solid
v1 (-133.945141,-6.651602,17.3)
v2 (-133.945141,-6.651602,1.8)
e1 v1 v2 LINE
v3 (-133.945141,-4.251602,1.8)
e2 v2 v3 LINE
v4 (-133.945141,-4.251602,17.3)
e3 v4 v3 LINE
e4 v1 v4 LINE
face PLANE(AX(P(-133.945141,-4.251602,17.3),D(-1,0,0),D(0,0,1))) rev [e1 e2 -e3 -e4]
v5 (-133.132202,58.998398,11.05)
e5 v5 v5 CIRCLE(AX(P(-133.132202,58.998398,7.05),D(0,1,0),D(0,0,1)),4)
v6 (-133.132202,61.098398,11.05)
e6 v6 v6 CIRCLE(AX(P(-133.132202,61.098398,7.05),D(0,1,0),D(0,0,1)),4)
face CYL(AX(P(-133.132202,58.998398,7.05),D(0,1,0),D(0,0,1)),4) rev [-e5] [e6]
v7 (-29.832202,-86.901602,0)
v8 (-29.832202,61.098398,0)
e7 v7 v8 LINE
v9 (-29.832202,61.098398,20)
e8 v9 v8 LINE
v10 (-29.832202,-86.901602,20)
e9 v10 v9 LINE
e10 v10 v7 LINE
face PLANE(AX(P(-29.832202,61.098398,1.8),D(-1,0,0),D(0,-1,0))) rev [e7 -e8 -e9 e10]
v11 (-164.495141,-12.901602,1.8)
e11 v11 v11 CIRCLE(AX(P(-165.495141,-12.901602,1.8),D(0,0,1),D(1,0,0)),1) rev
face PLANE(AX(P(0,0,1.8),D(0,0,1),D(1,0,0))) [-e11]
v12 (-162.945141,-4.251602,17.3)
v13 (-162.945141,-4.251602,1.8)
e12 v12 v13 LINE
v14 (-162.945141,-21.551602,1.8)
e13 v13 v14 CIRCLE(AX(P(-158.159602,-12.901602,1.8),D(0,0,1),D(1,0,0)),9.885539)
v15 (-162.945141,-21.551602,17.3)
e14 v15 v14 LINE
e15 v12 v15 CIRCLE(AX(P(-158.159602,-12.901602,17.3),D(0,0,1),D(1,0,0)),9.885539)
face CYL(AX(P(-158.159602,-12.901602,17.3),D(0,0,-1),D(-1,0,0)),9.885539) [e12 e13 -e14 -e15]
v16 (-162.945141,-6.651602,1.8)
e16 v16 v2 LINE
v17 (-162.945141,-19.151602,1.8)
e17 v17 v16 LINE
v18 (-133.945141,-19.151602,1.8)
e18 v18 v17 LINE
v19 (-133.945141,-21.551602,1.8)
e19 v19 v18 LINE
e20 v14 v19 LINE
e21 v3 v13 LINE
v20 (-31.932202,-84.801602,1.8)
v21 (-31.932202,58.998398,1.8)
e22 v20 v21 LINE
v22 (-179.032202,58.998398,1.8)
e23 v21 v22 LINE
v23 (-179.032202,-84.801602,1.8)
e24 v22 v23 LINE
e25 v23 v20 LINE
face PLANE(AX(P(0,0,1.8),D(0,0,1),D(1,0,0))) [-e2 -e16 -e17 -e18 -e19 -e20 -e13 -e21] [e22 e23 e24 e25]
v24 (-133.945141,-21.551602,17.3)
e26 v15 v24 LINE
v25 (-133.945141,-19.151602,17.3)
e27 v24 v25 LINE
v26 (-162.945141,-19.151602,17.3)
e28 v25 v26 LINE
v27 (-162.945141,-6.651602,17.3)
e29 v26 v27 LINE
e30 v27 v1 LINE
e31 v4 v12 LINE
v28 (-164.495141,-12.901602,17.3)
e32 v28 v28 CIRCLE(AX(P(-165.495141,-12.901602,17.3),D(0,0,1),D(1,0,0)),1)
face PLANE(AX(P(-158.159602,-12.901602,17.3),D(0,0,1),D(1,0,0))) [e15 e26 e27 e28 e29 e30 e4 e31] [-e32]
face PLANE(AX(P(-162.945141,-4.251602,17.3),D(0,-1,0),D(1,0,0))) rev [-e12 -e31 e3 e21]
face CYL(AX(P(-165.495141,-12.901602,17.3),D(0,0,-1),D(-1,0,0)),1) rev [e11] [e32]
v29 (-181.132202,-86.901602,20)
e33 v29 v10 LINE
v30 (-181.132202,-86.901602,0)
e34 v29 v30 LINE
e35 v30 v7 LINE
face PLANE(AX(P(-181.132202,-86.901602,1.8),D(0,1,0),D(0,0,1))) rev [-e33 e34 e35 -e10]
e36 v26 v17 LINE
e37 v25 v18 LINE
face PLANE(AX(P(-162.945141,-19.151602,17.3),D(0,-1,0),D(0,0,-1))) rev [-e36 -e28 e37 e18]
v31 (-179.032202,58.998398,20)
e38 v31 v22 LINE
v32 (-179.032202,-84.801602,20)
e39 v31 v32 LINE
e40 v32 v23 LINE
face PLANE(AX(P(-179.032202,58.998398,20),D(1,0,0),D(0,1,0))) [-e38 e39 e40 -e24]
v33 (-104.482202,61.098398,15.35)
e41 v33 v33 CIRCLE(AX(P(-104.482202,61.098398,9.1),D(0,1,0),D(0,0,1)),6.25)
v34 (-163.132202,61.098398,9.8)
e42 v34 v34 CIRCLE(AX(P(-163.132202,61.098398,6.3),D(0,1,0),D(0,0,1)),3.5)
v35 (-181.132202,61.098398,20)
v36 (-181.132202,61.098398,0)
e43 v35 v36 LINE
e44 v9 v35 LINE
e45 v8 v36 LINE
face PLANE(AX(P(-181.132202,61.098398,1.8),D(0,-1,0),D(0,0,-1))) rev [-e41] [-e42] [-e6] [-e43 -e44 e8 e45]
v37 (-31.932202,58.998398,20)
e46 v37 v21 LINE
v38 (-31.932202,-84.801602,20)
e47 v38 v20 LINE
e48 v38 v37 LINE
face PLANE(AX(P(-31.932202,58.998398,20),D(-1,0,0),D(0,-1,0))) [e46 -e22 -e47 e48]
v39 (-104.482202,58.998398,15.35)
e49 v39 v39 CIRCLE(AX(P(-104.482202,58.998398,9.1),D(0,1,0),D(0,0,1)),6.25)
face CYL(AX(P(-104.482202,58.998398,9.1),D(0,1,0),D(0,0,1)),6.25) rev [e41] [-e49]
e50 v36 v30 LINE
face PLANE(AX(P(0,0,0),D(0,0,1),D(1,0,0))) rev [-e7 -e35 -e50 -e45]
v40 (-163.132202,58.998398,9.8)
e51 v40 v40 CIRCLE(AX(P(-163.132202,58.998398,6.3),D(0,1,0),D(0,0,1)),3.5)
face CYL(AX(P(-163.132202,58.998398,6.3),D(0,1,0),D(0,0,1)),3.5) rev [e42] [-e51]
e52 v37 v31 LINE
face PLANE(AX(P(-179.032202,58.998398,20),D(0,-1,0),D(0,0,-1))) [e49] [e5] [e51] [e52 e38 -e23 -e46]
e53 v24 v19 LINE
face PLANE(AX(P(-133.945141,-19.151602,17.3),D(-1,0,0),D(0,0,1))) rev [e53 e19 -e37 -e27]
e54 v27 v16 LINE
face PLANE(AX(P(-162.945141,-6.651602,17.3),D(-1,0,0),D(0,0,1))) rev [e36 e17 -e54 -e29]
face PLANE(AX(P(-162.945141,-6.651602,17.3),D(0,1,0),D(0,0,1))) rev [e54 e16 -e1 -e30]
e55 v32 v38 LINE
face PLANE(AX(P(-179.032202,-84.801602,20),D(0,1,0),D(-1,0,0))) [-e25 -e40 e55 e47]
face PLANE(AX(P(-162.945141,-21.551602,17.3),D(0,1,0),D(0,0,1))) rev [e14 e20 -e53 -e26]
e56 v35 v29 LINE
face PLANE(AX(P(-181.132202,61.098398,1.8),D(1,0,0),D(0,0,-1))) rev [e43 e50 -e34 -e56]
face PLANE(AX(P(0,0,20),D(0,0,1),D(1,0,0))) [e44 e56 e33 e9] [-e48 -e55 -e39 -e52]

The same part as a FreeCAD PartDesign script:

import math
import FreeCAD as App
import Part
import Sketcher

V = App.Vector
Q = App.Units.Quantity


def add_polygon(sketch, points):
    """Adds a closed chain of lines whose ends are joined by coincident constraints."""
    first, n = sketch.GeometryCount, len(points)
    for a, b in zip(points, points[1:] + points[:1]):
        sketch.addGeometry(Part.LineSegment(App.Vector(*a, 0), App.Vector(*b, 0)), False)
    for i in range(n):
        sketch.addConstraint(Sketcher.Constraint("Coincident", first + i, 2, first + (i + 1) % n, 1))

doc = App.newDocument("Part")
body = doc.addObject("PartDesign::Body", "Body")

sketch1 = body.newObject("Sketcher::SketchObject", "Sketch")
sketch1.AttachmentSupport = (doc.getObject("XY_Plane"), [""])
sketch1.MapMode = "FlatFace"
add_polygon(sketch1, [(-181, 61), (-181, -87), (-30, -87), (-30, 61)])
sketch1.addConstraint(Sketcher.Constraint("Vertical", 0))
sketch1.addConstraint(Sketcher.Constraint("Horizontal", 1))
sketch1.addConstraint(Sketcher.Constraint("Vertical", 2))
sketch1.addConstraint(Sketcher.Constraint("Horizontal", 3))
sketch1.addConstraint(Sketcher.Constraint("DistanceY", 0, 2, 0, 1, Q("148 mm")))
sketch1.addConstraint(Sketcher.Constraint("DistanceX", 1, 1, 1, 2, Q("151.3 mm")))
sketch1.addConstraint(Sketcher.Constraint("DistanceX", 0, 2, -1, 1, Q("181.132202 mm")))
sketch1.addConstraint(Sketcher.Constraint("DistanceY", 0, 2, -1, 1, Q("86.901602 mm")))
pad1 = body.newObject("PartDesign::Pad", "Pad")
pad1.Profile = sketch1
pad1.Length = 1.8

sketch2 = body.newObject("Sketcher::SketchObject", "Sketch001")
sketch2.AttachmentSupport = (doc.getObject("XY_Plane"), [""])
sketch2.MapMode = "FlatFace"
sketch2.AttachmentOffset = App.Placement(V(0, 0, 1.8), App.Rotation())
add_polygon(sketch2, [(-181, 61), (-181, -87), (-30, -87), (-30, 61)])
add_polygon(sketch2, [(-32, -85), (-179, -85), (-179, 59), (-32, 59)])
sketch2.addConstraint(Sketcher.Constraint("Vertical", 0))
sketch2.addConstraint(Sketcher.Constraint("Horizontal", 1))
sketch2.addConstraint(Sketcher.Constraint("Vertical", 2))
sketch2.addConstraint(Sketcher.Constraint("Horizontal", 3))
sketch2.addConstraint(Sketcher.Constraint("Horizontal", 4))
sketch2.addConstraint(Sketcher.Constraint("Vertical", 5))
sketch2.addConstraint(Sketcher.Constraint("Horizontal", 6))
sketch2.addConstraint(Sketcher.Constraint("Vertical", 7))
sketch2.addConstraint(Sketcher.Constraint("DistanceY", 0, 2, 0, 1, Q("148 mm")))
sketch2.addConstraint(Sketcher.Constraint("DistanceX", 1, 1, 1, 2, Q("151.3 mm")))
sketch2.addConstraint(Sketcher.Constraint("DistanceX", 4, 2, 4, 1, Q("147.1 mm")))
sketch2.addConstraint(Sketcher.Constraint("DistanceY", 5, 1, 5, 2, Q("143.8 mm")))
sketch2.addConstraint(Sketcher.Constraint("DistanceX", 0, 2, 4, 2, Q("2.1 mm")))
sketch2.addConstraint(Sketcher.Constraint("DistanceY", 0, 2, 4, 2, Q("2.1 mm")))
sketch2.addConstraint(Sketcher.Constraint("DistanceX", 0, 2, -1, 1, Q("181.132202 mm")))
sketch2.addConstraint(Sketcher.Constraint("DistanceY", 0, 2, -1, 1, Q("86.901602 mm")))
pad2 = body.newObject("PartDesign::Pad", "Pad001")
pad2.Profile = sketch2
pad2.Length = 18.2

sketch3 = body.newObject("Sketcher::SketchObject", "Sketch002")
sketch3.AttachmentSupport = (doc.getObject("XZ_Plane"), [""])
sketch3.MapMode = "FlatFace"
sketch3.AttachmentOffset = App.Placement(V(0, 0, -61.098398), App.Rotation())
sketch3.addGeometry(Part.Circle(V(-104.5, 9.1, 0), V(0, 0, 1), 6.2), False)
sketch3.addGeometry(Part.Circle(V(-163.1, 6.3, 0), V(0, 0, 1), 3.5), False)
sketch3.addGeometry(Part.Circle(V(-133.1, 7, 0), V(0, 0, 1), 4), False)
sketch3.addConstraint(Sketcher.Constraint("Diameter", 1, Q("7 mm")))
sketch3.addConstraint(Sketcher.Constraint("Diameter", 2, Q("8 mm")))
sketch3.addConstraint(Sketcher.Constraint("Diameter", 0, Q("12.5 mm")))
sketch3.addConstraint(Sketcher.Constraint("DistanceX", 1, 3, 2, 3, Q("30 mm")))
sketch3.addConstraint(Sketcher.Constraint("DistanceY", -1, 1, 0, 3, Q("9.1 mm")))
sketch3.addConstraint(Sketcher.Constraint("DistanceY", -1, 1, 1, 3, Q("6.3 mm")))
sketch3.addConstraint(Sketcher.Constraint("DistanceY", -1, 1, 2, 3, Q("7.05 mm")))
sketch3.addConstraint(Sketcher.Constraint("DistanceX", 1, 3, 0, 3, Q("58.65 mm")))
sketch3.addConstraint(Sketcher.Constraint("DistanceX", 0, 3, -1, 1, Q("104.482202 mm")))
pocket1 = body.newObject("PartDesign::Pocket", "Pocket")
pocket1.Profile = sketch3
pocket1.Length = 2.1
pocket1.Reversed = True

sketch4 = body.newObject("Sketcher::SketchObject", "Sketch003")
sketch4.AttachmentSupport = (doc.getObject("XY_Plane"), [""])
sketch4.MapMode = "FlatFace"
sketch4.AttachmentOffset = App.Placement(V(0, 0, 1.8), App.Rotation())
sketch4.addGeometry(Part.LineSegment(V(-133.9, -6.7, 0), V(-133.9, -4.3, 0)), False)
sketch4.addGeometry(Part.LineSegment(V(-133.9, -4.3, 0), V(-162.9, -4.3, 0)), False)
sketch4.addGeometry(Part.ArcOfCircle(Part.Circle(V(-158.2, -12.9, 0), V(0, 0, 1), 9.9), math.radians(119), math.radians(241)), False)
sketch4.addGeometry(Part.LineSegment(V(-162.9, -21.6, 0), V(-133.9, -21.6, 0)), False)
sketch4.addGeometry(Part.LineSegment(V(-133.9, -21.6, 0), V(-133.9, -19.2, 0)), False)
sketch4.addGeometry(Part.LineSegment(V(-133.9, -19.2, 0), V(-162.9, -19.2, 0)), False)
sketch4.addGeometry(Part.LineSegment(V(-162.9, -19.2, 0), V(-162.9, -6.7, 0)), False)
sketch4.addGeometry(Part.LineSegment(V(-162.9, -6.7, 0), V(-133.9, -6.7, 0)), False)
sketch4.addGeometry(Part.Circle(V(-165.5, -12.9, 0), V(0, 0, 1), 1), False)
sketch4.addConstraint(Sketcher.Constraint("Coincident", 0, 2, 1, 1))
sketch4.addConstraint(Sketcher.Constraint("Coincident", 1, 2, 2, 1))
sketch4.addConstraint(Sketcher.Constraint("Coincident", 2, 2, 3, 1))
sketch4.addConstraint(Sketcher.Constraint("Coincident", 3, 2, 4, 1))
sketch4.addConstraint(Sketcher.Constraint("Coincident", 4, 2, 5, 1))
sketch4.addConstraint(Sketcher.Constraint("Coincident", 5, 2, 6, 1))
sketch4.addConstraint(Sketcher.Constraint("Coincident", 6, 2, 7, 1))
sketch4.addConstraint(Sketcher.Constraint("Coincident", 7, 2, 0, 1))
sketch4.addConstraint(Sketcher.Constraint("Vertical", 0))
sketch4.addConstraint(Sketcher.Constraint("Horizontal", 1))
sketch4.addConstraint(Sketcher.Constraint("Horizontal", 3))
sketch4.addConstraint(Sketcher.Constraint("Vertical", 4))
sketch4.addConstraint(Sketcher.Constraint("Horizontal", 5))
sketch4.addConstraint(Sketcher.Constraint("Vertical", 6))
sketch4.addConstraint(Sketcher.Constraint("Horizontal", 7))
sketch4.addConstraint(Sketcher.Constraint("Horizontal", 2, 3, 8, 3))
sketch4.addConstraint(Sketcher.Constraint("Vertical", 1, 2, 2, 2))
sketch4.addConstraint(Sketcher.Constraint("Vertical", 0, 2, 3, 2))
sketch4.addConstraint(Sketcher.Constraint("Vertical", 2, 2, 5, 2))
sketch4.addConstraint(Sketcher.Constraint("Equal", 0, 4))
sketch4.addConstraint(Sketcher.Constraint("Diameter", 8, Q("2 mm")))
sketch4.addConstraint(Sketcher.Constraint("DistanceX", 1, 2, 1, 1, Q("29 mm")))
sketch4.addConstraint(Sketcher.Constraint("DistanceY", 0, 1, 0, 2, Q("2.4 mm")))
sketch4.addConstraint(Sketcher.Constraint("DistanceY", 6, 1, 6, 2, Q("12.5 mm")))
sketch4.addConstraint(Sketcher.Constraint("Radius", 2, Q("9.885539 mm")))
sketch4.addConstraint(Sketcher.Constraint("DistanceX", 8, 3, 0, 2, Q("31.55 mm")))
sketch4.addConstraint(Sketcher.Constraint("DistanceY", 2, 3, -1, 1, Q("12.901602 mm")))
sketch4.addConstraint(Sketcher.Constraint("DistanceX", 8, 3, -1, 1, Q("165.495141 mm")))
pad3 = body.newObject("PartDesign::Pad", "Pad002")
pad3.Profile = sketch4
pad3.Length = 15.5

doc.recompute()
